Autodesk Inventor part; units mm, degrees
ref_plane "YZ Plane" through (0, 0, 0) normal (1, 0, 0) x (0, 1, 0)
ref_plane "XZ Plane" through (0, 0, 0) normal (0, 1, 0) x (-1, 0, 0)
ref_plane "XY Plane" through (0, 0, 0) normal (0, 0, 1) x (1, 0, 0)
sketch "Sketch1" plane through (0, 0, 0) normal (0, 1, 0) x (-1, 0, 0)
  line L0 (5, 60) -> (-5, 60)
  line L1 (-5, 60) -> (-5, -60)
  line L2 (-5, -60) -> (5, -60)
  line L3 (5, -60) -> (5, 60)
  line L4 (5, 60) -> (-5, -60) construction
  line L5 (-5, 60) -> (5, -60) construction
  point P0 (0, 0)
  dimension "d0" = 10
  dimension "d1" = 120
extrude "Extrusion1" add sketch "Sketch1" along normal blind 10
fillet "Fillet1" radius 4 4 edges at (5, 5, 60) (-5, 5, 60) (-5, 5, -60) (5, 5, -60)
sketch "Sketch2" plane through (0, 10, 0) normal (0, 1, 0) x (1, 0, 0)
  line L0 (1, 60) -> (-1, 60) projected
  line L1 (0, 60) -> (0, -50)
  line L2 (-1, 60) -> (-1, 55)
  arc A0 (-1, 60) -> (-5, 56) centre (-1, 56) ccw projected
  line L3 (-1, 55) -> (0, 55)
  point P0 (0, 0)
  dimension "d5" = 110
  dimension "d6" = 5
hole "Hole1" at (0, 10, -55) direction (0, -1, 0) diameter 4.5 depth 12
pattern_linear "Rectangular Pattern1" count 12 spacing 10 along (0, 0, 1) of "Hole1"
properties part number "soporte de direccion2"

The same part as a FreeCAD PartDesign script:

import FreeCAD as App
import Part
import Sketcher
from FreeCAD import Vector


def edges_at(feature, points):
    """Names of the edges that pass closest to the given points."""
    edges = feature.Shape.Edges
    near = lambda p: min(range(len(edges)), key=lambda i: edges[i].distToShape(Part.Vertex(*p))[0])
    return sorted({f"Edge{near(p) + 1}" for p in points})

doc = App.newDocument("Part")
body = doc.addObject("PartDesign::Body", "Body")

# Sketch on XZ plane
sketch1 = body.newObject("Sketcher::SketchObject", "Sketch")
sketch1.AttachmentSupport = (doc.getObject("XZ_Plane"), [""])
sketch1.MapMode = "FlatFace"
sketch1.addGeometry([
    Part.LineSegment(Vector(-5, -60, 0), Vector(-5, 60, 0)),
    Part.LineSegment(Vector(-5, 60, 0), Vector(5, 60, 0)),
    Part.LineSegment(Vector(5, 60, 0), Vector(5, -60, 0)),
    Part.LineSegment(Vector(5, -60, 0), Vector(-5, -60, 0)),
], False)
sketch1.addConstraint([
    Sketcher.Constraint("Coincident", 0, 2, 1, 1),
    Sketcher.Constraint("Coincident", 1, 2, 2, 1),
    Sketcher.Constraint("Coincident", 2, 2, 3, 1),
    Sketcher.Constraint("Coincident", 3, 2, 0, 1),
    Sketcher.Constraint("Vertical", 0),
    Sketcher.Constraint("Horizontal", 1),
    Sketcher.Constraint("Vertical", 2),
    Sketcher.Constraint("Horizontal", 3),
    Sketcher.Constraint("Symmetric", 0, 2, 2, 2, -1, 1),
    Sketcher.Constraint("DistanceX", 1, 1, 1, 2, 10.0),
    Sketcher.Constraint("DistanceY", 0, 1, 0, 2, 120.0),
])
pad1 = body.newObject("PartDesign::Pad", "Pad")
pad1.Profile = sketch1
pad1.Length = 10
pad1.Reversed = True
doc.recompute()

fillet = body.newObject("PartDesign::Fillet", "Fillet")
fillet.Base = (pad1, edges_at(pad1, [
    (5, 5, 60),
    (-5, 5, 60),
    (-5, 5, -60),
    (5, 5, -60),
]))
fillet.Radius = 4

# Sketch on XZ plane
sketch2 = body.newObject("Sketcher::SketchObject", "Sketch001")
sketch2.AttachmentSupport = (doc.getObject("XZ_Plane"), [""])
sketch2.MapMode = "FlatFace"
sketch2.AttachmentOffset = App.Placement(Vector(0, 0, -10), App.Rotation())
sketch2.addGeometry(Part.Circle(Vector(0, -55, 0), Vector(0, 0, 1), 2.2), False)
sketch2.addConstraint([
    Sketcher.Constraint("PointOnObject", 0, 3, -2),
    Sketcher.Constraint("Diameter", 0, 4.5),
    Sketcher.Constraint("DistanceY", 0, 3, -1, 1, 55.0),
])
doc.recompute()
hole = body.newObject("PartDesign::Hole", "Hole")
hole.Profile = sketch2
hole.ThreadType = "None"
hole.Diameter = 4.5
hole.DepthType = "Dimension"
hole.Depth = 12
hole.DrillPoint = "Flat"
hole.Reversed = True
doc.recompute()

linearpattern = body.newObject("PartDesign::LinearPattern", "LinearPattern")
linearpattern.Originals = [hole]
linearpattern.Direction = (doc.getObject("Z_Axis"), [""])
linearpattern.Mode = "offset"
linearpattern.Offset = 10
linearpattern.Occurrences = 12
body.Tip = linearpattern

doc.recompute()
